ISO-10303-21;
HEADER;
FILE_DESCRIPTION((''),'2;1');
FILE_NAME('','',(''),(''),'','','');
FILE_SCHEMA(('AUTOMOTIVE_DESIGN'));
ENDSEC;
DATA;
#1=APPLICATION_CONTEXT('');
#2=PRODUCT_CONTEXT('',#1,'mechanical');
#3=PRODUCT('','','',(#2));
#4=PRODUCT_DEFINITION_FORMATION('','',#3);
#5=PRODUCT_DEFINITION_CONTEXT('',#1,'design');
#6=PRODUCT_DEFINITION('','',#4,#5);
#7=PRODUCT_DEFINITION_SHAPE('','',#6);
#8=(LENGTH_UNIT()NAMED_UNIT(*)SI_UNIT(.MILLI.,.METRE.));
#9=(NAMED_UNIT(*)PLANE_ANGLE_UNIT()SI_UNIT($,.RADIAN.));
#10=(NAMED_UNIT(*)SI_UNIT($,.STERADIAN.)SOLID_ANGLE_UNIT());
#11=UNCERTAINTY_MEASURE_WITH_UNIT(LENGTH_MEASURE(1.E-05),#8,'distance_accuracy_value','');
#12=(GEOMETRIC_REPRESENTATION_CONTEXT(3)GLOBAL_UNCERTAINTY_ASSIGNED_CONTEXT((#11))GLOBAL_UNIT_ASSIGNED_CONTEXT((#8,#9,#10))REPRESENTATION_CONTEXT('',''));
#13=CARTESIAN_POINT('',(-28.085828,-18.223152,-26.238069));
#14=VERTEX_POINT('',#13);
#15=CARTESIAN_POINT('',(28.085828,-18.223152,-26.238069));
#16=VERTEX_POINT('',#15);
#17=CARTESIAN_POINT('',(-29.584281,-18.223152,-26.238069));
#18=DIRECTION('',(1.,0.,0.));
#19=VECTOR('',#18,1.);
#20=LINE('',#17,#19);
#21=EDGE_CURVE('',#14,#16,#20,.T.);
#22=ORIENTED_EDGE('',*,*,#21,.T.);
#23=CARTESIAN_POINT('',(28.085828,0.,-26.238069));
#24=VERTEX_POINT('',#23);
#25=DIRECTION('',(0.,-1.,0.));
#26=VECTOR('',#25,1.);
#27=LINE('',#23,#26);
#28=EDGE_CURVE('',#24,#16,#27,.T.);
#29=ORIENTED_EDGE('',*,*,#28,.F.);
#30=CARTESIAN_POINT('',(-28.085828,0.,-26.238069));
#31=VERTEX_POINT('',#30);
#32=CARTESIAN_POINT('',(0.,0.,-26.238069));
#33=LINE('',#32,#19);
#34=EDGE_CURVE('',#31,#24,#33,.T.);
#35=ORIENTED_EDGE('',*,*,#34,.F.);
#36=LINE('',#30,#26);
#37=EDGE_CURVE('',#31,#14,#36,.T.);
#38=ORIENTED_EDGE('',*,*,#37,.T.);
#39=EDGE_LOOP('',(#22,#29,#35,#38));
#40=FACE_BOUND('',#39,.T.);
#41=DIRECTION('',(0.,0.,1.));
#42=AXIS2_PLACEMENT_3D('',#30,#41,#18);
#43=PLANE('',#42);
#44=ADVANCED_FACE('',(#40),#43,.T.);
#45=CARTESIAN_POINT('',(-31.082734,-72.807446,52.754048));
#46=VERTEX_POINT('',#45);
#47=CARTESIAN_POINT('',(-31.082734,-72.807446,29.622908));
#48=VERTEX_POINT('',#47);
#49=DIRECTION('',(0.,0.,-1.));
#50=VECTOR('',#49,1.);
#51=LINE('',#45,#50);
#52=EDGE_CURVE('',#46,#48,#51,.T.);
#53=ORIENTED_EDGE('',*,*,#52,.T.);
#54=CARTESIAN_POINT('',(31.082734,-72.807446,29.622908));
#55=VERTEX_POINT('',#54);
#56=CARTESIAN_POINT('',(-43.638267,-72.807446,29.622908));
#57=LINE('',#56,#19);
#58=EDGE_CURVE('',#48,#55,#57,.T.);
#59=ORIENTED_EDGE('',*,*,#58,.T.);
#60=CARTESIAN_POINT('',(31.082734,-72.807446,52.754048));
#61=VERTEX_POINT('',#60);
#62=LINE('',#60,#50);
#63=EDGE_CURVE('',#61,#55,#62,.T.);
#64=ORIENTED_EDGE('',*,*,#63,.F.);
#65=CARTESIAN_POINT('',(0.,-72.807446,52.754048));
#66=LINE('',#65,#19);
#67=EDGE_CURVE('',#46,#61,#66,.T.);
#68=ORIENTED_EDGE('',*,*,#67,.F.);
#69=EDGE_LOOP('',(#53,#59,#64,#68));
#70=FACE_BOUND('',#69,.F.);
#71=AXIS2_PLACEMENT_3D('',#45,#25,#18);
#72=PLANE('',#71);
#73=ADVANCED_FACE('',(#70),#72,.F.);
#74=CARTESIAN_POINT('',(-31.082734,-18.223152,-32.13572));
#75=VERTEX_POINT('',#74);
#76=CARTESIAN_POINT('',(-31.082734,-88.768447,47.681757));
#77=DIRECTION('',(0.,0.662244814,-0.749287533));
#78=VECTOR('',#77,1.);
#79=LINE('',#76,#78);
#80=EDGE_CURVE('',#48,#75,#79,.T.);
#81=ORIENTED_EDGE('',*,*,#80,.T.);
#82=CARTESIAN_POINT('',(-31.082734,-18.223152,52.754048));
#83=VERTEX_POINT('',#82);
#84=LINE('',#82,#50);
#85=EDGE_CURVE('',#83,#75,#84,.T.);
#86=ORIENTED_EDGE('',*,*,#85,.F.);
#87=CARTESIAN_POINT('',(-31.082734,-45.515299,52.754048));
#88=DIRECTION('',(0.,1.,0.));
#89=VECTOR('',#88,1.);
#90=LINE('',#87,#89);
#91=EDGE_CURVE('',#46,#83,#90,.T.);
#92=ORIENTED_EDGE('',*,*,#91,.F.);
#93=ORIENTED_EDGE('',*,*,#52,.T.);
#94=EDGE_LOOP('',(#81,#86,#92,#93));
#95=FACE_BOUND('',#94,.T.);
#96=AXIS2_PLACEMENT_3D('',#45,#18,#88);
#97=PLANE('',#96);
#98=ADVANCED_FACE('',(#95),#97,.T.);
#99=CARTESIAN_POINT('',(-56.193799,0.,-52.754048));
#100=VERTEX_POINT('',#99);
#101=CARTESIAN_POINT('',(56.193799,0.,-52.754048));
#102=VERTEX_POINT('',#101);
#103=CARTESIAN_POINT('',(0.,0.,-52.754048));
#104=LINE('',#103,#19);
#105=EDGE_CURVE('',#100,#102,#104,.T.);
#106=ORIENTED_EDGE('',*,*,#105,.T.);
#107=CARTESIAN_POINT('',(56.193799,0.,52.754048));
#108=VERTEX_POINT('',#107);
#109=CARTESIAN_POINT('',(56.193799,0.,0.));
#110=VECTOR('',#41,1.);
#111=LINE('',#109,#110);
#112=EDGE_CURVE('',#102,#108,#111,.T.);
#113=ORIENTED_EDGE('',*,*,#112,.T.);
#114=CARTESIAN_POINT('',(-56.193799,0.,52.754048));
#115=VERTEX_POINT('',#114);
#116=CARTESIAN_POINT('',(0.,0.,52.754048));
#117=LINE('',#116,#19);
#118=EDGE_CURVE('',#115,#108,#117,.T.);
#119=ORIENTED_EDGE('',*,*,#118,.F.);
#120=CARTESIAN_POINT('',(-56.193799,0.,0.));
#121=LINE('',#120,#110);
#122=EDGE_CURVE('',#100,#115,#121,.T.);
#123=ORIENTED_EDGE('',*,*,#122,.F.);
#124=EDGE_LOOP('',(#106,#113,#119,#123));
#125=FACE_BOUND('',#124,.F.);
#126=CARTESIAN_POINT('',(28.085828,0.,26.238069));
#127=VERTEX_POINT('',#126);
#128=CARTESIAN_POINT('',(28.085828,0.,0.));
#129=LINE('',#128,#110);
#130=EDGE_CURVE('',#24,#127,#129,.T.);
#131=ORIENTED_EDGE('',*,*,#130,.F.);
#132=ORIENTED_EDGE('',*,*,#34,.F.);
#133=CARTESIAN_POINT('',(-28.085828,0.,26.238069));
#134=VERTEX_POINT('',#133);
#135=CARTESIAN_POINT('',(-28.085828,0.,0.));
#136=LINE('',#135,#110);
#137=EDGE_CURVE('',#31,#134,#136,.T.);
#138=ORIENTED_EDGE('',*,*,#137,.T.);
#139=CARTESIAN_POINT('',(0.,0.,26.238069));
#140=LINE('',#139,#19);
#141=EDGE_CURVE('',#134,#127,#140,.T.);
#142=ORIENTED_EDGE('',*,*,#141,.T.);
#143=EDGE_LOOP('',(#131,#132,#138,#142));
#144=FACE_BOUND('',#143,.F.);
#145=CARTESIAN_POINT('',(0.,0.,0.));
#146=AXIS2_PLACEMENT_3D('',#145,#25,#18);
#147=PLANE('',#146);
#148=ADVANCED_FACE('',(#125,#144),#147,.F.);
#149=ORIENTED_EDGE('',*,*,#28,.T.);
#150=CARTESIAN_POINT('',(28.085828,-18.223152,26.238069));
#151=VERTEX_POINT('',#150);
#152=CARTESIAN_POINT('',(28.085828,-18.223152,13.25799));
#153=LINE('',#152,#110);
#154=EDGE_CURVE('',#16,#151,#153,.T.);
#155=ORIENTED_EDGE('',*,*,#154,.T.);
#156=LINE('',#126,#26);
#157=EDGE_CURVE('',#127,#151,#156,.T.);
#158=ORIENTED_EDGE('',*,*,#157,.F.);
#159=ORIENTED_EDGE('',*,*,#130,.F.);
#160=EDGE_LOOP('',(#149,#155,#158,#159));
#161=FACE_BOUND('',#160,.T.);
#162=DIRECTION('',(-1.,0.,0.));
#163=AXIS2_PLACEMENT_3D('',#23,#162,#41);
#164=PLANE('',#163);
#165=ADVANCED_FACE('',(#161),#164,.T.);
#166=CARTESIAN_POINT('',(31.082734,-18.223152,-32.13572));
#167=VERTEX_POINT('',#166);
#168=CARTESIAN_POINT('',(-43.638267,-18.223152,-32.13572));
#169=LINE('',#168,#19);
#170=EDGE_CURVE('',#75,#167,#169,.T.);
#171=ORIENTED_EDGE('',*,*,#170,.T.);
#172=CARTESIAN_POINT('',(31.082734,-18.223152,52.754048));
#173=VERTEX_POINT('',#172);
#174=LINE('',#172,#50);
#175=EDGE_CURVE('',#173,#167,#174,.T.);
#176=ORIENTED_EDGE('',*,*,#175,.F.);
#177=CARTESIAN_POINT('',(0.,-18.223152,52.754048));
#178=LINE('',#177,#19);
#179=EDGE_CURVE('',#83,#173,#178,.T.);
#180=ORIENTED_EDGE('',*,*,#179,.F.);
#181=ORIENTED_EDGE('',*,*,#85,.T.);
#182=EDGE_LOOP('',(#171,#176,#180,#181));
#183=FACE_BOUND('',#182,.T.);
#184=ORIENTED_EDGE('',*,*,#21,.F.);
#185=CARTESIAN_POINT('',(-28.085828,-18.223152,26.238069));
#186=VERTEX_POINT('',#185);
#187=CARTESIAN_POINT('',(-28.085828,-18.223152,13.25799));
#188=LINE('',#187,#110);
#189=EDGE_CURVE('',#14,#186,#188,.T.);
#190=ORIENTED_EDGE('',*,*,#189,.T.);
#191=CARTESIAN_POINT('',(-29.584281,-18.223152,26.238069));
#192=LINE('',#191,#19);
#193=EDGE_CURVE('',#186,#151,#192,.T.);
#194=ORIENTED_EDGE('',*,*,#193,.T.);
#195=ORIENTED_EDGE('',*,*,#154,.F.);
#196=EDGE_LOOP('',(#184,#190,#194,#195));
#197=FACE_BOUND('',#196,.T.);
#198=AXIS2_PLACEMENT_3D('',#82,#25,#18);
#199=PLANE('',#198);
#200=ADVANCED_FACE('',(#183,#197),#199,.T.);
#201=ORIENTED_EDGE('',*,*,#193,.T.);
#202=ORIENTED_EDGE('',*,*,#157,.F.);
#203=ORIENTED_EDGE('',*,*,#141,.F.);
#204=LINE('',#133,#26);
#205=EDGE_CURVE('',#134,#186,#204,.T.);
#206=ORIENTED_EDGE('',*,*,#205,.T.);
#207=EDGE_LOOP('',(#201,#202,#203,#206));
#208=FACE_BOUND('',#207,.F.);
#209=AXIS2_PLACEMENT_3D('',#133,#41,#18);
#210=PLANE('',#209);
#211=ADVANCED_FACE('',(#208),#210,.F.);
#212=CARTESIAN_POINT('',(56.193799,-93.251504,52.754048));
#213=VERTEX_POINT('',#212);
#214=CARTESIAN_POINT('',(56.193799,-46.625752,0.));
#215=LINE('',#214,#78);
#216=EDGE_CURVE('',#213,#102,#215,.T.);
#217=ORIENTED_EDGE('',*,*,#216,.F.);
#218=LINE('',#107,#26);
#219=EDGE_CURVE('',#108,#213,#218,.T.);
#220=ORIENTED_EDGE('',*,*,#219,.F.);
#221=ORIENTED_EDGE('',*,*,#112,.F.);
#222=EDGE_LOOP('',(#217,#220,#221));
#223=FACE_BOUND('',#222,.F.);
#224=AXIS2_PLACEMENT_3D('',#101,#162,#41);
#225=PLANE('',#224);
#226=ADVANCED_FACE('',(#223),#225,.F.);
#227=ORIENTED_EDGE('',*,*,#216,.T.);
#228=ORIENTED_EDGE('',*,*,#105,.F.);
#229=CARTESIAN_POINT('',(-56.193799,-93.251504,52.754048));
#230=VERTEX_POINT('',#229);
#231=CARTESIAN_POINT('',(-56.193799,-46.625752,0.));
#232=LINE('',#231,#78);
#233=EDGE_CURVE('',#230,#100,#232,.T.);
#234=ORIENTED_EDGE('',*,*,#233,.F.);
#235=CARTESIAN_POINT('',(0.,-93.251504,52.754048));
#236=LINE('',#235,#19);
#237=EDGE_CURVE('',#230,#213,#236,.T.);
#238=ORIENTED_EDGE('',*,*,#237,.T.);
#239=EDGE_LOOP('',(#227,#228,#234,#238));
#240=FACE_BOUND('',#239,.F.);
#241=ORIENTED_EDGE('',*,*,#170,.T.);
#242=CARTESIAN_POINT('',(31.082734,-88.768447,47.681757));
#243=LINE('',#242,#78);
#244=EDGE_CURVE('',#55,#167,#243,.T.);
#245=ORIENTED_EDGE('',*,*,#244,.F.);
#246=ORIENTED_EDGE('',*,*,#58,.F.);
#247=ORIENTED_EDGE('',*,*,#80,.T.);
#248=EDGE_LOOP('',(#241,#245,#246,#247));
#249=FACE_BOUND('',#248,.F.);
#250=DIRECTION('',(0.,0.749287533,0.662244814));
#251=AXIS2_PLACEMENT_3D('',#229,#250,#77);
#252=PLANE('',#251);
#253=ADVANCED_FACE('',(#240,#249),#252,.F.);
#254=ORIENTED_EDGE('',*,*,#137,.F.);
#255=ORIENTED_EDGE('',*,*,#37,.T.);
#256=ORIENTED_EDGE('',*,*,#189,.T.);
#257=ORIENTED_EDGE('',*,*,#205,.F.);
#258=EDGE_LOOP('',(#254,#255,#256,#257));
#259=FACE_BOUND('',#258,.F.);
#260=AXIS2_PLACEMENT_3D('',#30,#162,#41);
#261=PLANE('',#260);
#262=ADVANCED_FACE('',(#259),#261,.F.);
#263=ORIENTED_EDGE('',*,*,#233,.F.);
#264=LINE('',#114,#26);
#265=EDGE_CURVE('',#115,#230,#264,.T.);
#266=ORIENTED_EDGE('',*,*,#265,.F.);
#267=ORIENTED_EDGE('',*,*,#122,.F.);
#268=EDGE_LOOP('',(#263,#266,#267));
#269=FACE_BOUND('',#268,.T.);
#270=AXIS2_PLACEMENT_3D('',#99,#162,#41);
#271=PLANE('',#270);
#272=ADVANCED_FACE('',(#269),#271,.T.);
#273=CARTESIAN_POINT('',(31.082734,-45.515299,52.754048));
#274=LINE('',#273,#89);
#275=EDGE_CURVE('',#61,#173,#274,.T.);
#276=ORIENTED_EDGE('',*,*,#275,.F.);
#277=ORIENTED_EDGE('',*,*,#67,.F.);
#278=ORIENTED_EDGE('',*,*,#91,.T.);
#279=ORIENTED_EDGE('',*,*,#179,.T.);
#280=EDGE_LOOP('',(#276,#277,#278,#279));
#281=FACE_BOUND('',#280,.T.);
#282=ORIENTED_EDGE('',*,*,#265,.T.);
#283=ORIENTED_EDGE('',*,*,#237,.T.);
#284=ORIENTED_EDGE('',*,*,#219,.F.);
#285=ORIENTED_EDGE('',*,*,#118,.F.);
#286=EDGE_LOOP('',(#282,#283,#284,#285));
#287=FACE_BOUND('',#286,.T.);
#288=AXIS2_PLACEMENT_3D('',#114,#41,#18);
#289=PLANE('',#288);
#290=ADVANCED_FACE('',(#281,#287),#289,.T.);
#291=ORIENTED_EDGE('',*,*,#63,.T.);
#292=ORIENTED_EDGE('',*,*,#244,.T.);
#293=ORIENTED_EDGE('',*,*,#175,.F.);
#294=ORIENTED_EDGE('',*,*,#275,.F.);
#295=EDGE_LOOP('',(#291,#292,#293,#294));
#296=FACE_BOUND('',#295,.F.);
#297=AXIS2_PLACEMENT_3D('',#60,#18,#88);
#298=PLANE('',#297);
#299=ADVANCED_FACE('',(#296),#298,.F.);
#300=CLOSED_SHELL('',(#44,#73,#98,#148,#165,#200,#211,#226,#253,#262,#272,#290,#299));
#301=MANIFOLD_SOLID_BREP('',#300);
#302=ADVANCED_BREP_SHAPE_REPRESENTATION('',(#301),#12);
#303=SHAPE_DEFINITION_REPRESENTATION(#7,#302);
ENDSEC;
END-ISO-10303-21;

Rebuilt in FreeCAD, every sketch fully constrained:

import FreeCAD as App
import Part
import Sketcher
from FreeCAD import Vector


def add_polygon(sketch, points):
    """Adds a closed chain of lines whose ends are joined by coincident constraints."""
    first, n = sketch.GeometryCount, len(points)
    for a, b in zip(points, points[1:] + points[:1]):
        sketch.addGeometry(Part.LineSegment(App.Vector(*a, 0), App.Vector(*b, 0)), False)
    for i in range(n):
        sketch.addConstraint(Sketcher.Constraint("Coincident", first + i, 2, first + (i + 1) % n, 1))

doc = App.newDocument("Part")
body = doc.addObject("PartDesign::Body", "Body")

sketch1 = body.newObject("Sketcher::SketchObject", "Sketch")
sketch1.AttachmentSupport = (doc.getObject("XZ_Plane"), [""])
sketch1.MapMode = "FlatFace"
add_polygon(sketch1, [(-56, 53), (-56, -53), (56, -53), (56, 53)])
add_polygon(sketch1, [(28, -26), (-28, -26), (-28, 26), (28, 26)])
sketch1.addConstraint([
    Sketcher.Constraint("Vertical", 0),
    Sketcher.Constraint("Horizontal", 1),
    Sketcher.Constraint("Vertical", 2),
    Sketcher.Constraint("Horizontal", 3),
    Sketcher.Constraint("Horizontal", 4),
    Sketcher.Constraint("Vertical", 5),
    Sketcher.Constraint("Horizontal", 6),
    Sketcher.Constraint("Vertical", 7),
    Sketcher.Constraint("Symmetric", 0, 2, 2, 2, -1, 1),
    Sketcher.Constraint("Symmetric", 4, 2, 6, 2, -1, 1),
    Sketcher.Constraint("DistanceX", 0, 2, -1, 1, 56.193799),
    Sketcher.Constraint("DistanceX", 4, 2, 4, 1, 56.171656),
    Sketcher.Constraint("DistanceY", 0, 2, 0, 1, 105.508096),
    Sketcher.Constraint("DistanceY", 5, 1, 5, 2, 52.476138),
])
pad1 = body.newObject("PartDesign::Pad", "Pad")
pad1.Profile = sketch1
pad1.Length = 93.251504

sketch2 = body.newObject("Sketcher::SketchObject", "Sketch001")
sketch2.AttachmentSupport = (doc.getObject("YZ_Plane"), [""])
sketch2.MapMode = "FlatFace"
sketch2.AttachmentOffset = App.Placement(Vector(0, 0, -56.193799), App.Rotation())
add_polygon(sketch2, [(-93, 53), (0, -53), (-93, -53)])
sketch2.addConstraint([
    Sketcher.Constraint("Horizontal", 1),
    Sketcher.Constraint("Vertical", 2),
    Sketcher.Constraint("PointOnObject", 0, 2, -2),
    Sketcher.Constraint("DistanceX", 1, 2, 1, 1, 93.251504),
    Sketcher.Constraint("DistanceY", 2, 1, 2, 2, 105.508096),
    Sketcher.Constraint("DistanceY", 0, 2, -1, 1, 52.754048),
])
pocket1 = body.newObject("PartDesign::Pocket", "Pocket")
pocket1.Profile = sketch2
pocket1.Length = 100000
pocket1.Midplane = True

sketch3 = body.newObject("Sketcher::SketchObject", "Sketch002")
sketch3.AttachmentSupport = (doc.getObject("XY_Plane"), [""])
sketch3.MapMode = "FlatFace"
sketch3.AttachmentOffset = App.Placement(Vector(0, 0, 52.754048), App.Rotation())
add_polygon(sketch3, [(-31, -18), (-31, -73), (31, -73), (31, -18)])
sketch3.addConstraint([
    Sketcher.Constraint("Vertical", 0),
    Sketcher.Constraint("Horizontal", 1),
    Sketcher.Constraint("Vertical", 2),
    Sketcher.Constraint("Horizontal", 3),
    Sketcher.Constraint("DistanceX", 1, 1, 1, 2, 62.165468),
    Sketcher.Constraint("DistanceY", 0, 2, 0, 1, 54.584294),
    Sketcher.Constraint("DistanceY", 2, 2, -1, 1, 18.223152),
    Sketcher.Constraint("DistanceX", 0, 2, -1, 1, 31.082734),
])
pocket2 = body.newObject("PartDesign::Pocket", "Pocket001")
pocket2.Profile = sketch3
pocket2.Type = "ThroughAll"

doc.recompute()
